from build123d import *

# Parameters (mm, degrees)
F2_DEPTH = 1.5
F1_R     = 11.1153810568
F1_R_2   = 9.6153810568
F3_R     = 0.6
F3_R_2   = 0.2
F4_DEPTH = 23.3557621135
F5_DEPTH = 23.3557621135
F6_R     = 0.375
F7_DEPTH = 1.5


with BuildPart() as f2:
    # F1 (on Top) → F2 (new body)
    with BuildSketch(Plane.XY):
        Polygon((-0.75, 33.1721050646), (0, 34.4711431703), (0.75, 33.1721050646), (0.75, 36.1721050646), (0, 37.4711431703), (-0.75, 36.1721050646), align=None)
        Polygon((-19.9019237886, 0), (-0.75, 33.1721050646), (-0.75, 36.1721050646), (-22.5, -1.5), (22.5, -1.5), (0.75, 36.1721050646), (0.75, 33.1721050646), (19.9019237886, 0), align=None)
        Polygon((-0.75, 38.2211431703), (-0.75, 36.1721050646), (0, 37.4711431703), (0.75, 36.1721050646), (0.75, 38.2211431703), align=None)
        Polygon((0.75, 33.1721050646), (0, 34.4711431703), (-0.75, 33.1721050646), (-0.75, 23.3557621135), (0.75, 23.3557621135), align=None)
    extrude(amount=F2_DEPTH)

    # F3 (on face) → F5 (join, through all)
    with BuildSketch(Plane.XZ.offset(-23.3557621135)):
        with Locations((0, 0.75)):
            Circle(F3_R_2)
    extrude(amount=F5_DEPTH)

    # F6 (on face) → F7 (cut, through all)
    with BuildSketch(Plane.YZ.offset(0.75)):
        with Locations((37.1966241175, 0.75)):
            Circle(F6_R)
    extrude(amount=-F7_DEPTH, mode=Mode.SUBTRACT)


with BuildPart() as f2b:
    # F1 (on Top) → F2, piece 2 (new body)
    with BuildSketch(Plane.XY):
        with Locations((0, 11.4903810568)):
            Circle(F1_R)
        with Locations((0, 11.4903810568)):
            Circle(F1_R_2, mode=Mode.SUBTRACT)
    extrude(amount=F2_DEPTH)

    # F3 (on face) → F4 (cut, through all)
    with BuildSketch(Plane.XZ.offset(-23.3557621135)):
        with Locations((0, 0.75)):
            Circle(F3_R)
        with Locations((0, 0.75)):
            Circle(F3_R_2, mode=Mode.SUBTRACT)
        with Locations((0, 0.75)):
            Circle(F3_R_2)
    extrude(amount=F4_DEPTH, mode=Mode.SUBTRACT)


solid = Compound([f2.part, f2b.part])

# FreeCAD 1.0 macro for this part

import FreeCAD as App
import Part
import Sketcher

V = App.Vector
Q = App.Units.Quantity


def add_polygon(sketch, points):
    """Adds a closed chain of lines whose ends are joined by coincident constraints."""
    first, n = sketch.GeometryCount, len(points)
    for a, b in zip(points, points[1:] + points[:1]):
        sketch.addGeometry(Part.LineSegment(App.Vector(*a, 0), App.Vector(*b, 0)), False)
    for i in range(n):
        sketch.addConstraint(Sketcher.Constraint("Coincident", first + i, 2, first + (i + 1) % n, 1))

doc = App.newDocument("Part")
body = doc.addObject("PartDesign::Body", "Body")

# Sketch on XY plane
sketch1 = body.newObject("Sketcher::SketchObject", "Sketch")
sketch1.AttachmentSupport = (doc.getObject("XY_Plane"), [""])
sketch1.MapMode = "FlatFace"
add_polygon(sketch1, [(-0.8, 36.2), (-22.5, -1.5), (22.5, -1.5), (0.8, 36.2), (0.8, 38.2), (-0.8, 38.2)])  # lines 0-5
add_polygon(sketch1, [(0.8, 33.2), (19.9, 0), (-19.9, 0), (-0.8, 33.2), (-0.8, 23.4), (0.8, 23.4)])  # lines 6-11
sketch1.addConstraint(Sketcher.Constraint("Horizontal", 1))
sketch1.addConstraint(Sketcher.Constraint("Vertical", 3))
sketch1.addConstraint(Sketcher.Constraint("Horizontal", 4))
sketch1.addConstraint(Sketcher.Constraint("Vertical", 5))
sketch1.addConstraint(Sketcher.Constraint("Horizontal", 7))
sketch1.addConstraint(Sketcher.Constraint("Vertical", 9))
sketch1.addConstraint(Sketcher.Constraint("Horizontal", 10))
sketch1.addConstraint(Sketcher.Constraint("Vertical", 11))
sketch1.addConstraint(Sketcher.Constraint("Symmetric", 6, 2, 7, 2, -1, 1))
sketch1.addConstraint(Sketcher.Constraint("Symmetric", 2, 2, 5, 2, -2))
sketch1.addConstraint(Sketcher.Constraint("Symmetric", 8, 2, 11, 2, -2))
sketch1.addConstraint(Sketcher.Constraint("Parallel", 2, 6))
sketch1.addConstraint(Sketcher.Constraint("Parallel", 0, 8))
sketch1.addConstraint(Sketcher.Constraint("Vertical", 5, 2, 8, 2))
sketch1.addConstraint(Sketcher.Constraint("DistanceX", 1, 1, 1, 2, 45.0))
sketch1.addConstraint(Sketcher.Constraint("Angle", 0, Q("-120 deg")))
sketch1.addConstraint(Sketcher.Constraint("DistanceX", 4, 2, 4, 1, 1.5))
sketch1.addConstraint(Sketcher.Constraint("DistanceY", 8, 2, 5, 2, 3.0))
sketch1.addConstraint(Sketcher.Constraint("DistanceY", 0, 2, -1, 1, 1.5))
sketch1.addConstraint(Sketcher.Constraint("DistanceY", 3, 1, 3, 2, 2.049038))
sketch1.addConstraint(Sketcher.Constraint("DistanceY", 9, 2, 9, 1, 9.816343))
pad1 = body.newObject("PartDesign::Pad", "Pad")
pad1.Profile = sketch1
pad1.Length = 1.5

# Sketch on XZ plane
sketch2 = body.newObject("Sketcher::SketchObject", "Sketch001")
sketch2.AttachmentSupport = (doc.getObject("XZ_Plane"), [""])
sketch2.MapMode = "FlatFace"
sketch2.AttachmentOffset = App.Placement(V(0, 0, -23.355762), App.Rotation())
sketch2.addGeometry(Part.Circle(V(0, 0.75, 0), V(0, 0, 1), 0.2), False)
sketch2.addConstraint(Sketcher.Constraint("PointOnObject", 0, 3, -2))
sketch2.addConstraint(Sketcher.Constraint("Diameter", 0, 0.4))
sketch2.addConstraint(Sketcher.Constraint("DistanceY", -1, 1, 0, 3, 0.75))
pad2 = body.newObject("PartDesign::Pad", "Pad001")
pad2.Profile = sketch2
pad2.Type = "UpToLast"

# Sketch on YZ plane
sketch3 = body.newObject("Sketcher::SketchObject", "Sketch002")
sketch3.AttachmentSupport = (doc.getObject("YZ_Plane"), [""])
sketch3.MapMode = "FlatFace"
sketch3.AttachmentOffset = App.Placement(V(0, 0, 0.75), App.Rotation())
sketch3.addGeometry(Part.Circle(V(37.2, 0.75, 0), V(0, 0, 1), 0.38), False)
sketch3.addConstraint(Sketcher.Constraint("Diameter", 0, 0.75))
sketch3.addConstraint(Sketcher.Constraint("DistanceY", -1, 1, 0, 3, 0.75))
sketch3.addConstraint(Sketcher.Constraint("DistanceX", -1, 1, 0, 3, 37.196624))
pocket1 = body.newObject("PartDesign::Pocket", "Pocket")
pocket1.Profile = sketch3
pocket1.Type = "ThroughAll"
body2 = doc.addObject("PartDesign::Body", "Body001")

# Sketch on XY plane
sketch4 = body2.newObject("Sketcher::SketchObject", "Sketch003")
sketch4.AttachmentSupport = (doc.getObject("XY_Plane001"), [""])
sketch4.MapMode = "FlatFace"
sketch4.addGeometry(Part.Circle(V(0, 11, 0), V(0, 0, 1), 11), False)
sketch4.addGeometry(Part.Circle(V(0, 11, 0), V(0, 0, 1), 10), False)
sketch4.addConstraint(Sketcher.Constraint("Coincident", 1, 3, 0, 3))
sketch4.addConstraint(Sketcher.Constraint("PointOnObject", 0, 3, -2))
sketch4.addConstraint(Sketcher.Constraint("Diameter", 0, 22.230762))
sketch4.addConstraint(Sketcher.Constraint("Diameter", 1, 19.230762))
sketch4.addConstraint(Sketcher.Constraint("DistanceY", -1, 1, 0, 3, 11.490381))
pad3 = body2.newObject("PartDesign::Pad", "Pad002")
pad3.Profile = sketch4
pad3.Length = 1.5

# Sketch on XZ plane
sketch5 = body2.newObject("Sketcher::SketchObject", "Sketch004")
sketch5.AttachmentSupport = (doc.getObject("XZ_Plane001"), [""])
sketch5.MapMode = "FlatFace"
sketch5.AttachmentOffset = App.Placement(V(0, 0, -23.355762), App.Rotation())
sketch5.addGeometry(Part.Circle(V(0, 0.8, 0), V(0, 0, 1), 0.6), False)
sketch5.addConstraint(Sketcher.Constraint("PointOnObject", 0, 3, -2))
sketch5.addConstraint(Sketcher.Constraint("Diameter", 0, 1.2))
sketch5.addConstraint(Sketcher.Constraint("DistanceY", -1, 1, 0, 3, 0.75))
pocket2 = body2.newObject("PartDesign::Pocket", "Pocket001")
pocket2.Profile = sketch5
pocket2.Type = "ThroughAll"
pocket2.Reversed = True

doc.recompute()
